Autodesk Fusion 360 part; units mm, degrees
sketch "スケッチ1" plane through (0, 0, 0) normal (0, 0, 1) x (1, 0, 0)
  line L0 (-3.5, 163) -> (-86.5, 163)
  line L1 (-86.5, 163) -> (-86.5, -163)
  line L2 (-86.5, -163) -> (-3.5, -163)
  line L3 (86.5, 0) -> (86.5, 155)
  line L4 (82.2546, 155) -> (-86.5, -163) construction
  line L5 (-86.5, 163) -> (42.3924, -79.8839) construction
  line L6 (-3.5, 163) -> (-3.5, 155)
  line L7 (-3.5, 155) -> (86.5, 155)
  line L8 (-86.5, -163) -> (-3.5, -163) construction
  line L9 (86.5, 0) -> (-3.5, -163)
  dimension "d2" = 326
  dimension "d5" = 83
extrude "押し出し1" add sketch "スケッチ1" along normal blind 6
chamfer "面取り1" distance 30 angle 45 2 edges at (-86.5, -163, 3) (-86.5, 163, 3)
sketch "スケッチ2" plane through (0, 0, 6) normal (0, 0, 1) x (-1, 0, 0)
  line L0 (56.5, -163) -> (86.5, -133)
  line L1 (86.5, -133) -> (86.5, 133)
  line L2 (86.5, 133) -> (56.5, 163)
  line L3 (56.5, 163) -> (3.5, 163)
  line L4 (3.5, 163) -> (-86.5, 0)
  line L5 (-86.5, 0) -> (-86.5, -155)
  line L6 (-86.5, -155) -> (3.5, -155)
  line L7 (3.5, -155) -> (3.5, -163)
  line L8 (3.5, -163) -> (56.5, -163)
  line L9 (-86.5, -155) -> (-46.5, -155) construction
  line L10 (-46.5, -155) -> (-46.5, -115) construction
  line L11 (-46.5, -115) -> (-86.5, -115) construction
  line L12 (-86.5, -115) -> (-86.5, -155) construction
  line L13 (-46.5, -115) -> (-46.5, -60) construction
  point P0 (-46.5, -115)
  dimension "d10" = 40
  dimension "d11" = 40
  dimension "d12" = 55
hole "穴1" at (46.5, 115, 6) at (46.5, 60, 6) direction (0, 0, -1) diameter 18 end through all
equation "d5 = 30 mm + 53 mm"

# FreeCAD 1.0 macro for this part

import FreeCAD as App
import Part
import Sketcher
Q = App.Units.Quantity


def edges_at(feature, points):
    """Names of the edges that pass closest to the given points."""
    edges = feature.Shape.Edges
    near = lambda p: min(range(len(edges)), key=lambda i: edges[i].distToShape(Part.Vertex(*p))[0])
    return sorted({f"Edge{near(p) + 1}" for p in points})


def add_polygon(sketch, points):
    """Adds a closed chain of lines whose ends are joined by coincident constraints."""
    first, n = sketch.GeometryCount, len(points)
    for a, b in zip(points, points[1:] + points[:1]):
        sketch.addGeometry(Part.LineSegment(App.Vector(*a, 0), App.Vector(*b, 0)), False)
    for i in range(n):
        sketch.addConstraint(Sketcher.Constraint("Coincident", first + i, 2, first + (i + 1) % n, 1))

doc = App.newDocument("Part")
params = doc.addObject("Spreadsheet::Sheet", "Params")
for row, (alias, value) in enumerate([
    ("sketch1_width", "83 mm"),
    ("sketch1_height", "326 mm"),
    ("sketch1_width2", "90 mm"),
    ("sketch1_height2", "8 mm"),
    ("pad1_length", "6 mm"),
    ("chamfer_size", "30 mm"),
    ("sketch2_diameter", "18 mm"),
    ("hole_diameter", "18 mm"),
], start=1):
    params.set(f"A{row}", alias)
    params.set(f"B{row}", "=" + value)
    params.setAlias(f"B{row}", alias)

body = doc.addObject("PartDesign::Body", "Body")

# Sketch on XY plane
sketch1 = body.newObject("Sketcher::SketchObject", "Sketch")
sketch1.AttachmentSupport = (doc.getObject("XY_Plane"), [""])
sketch1.MapMode = "FlatFace"
add_polygon(sketch1, [(-4, 155), (-4, 163), (-86, 163), (-86, -163), (-4, -163), (86, 0), (86, 155)])  # lines 0-6
sketch1.addConstraint([
    Sketcher.Constraint("Vertical", 0),
    Sketcher.Constraint("Horizontal", 1),
    Sketcher.Constraint("Vertical", 2),
    Sketcher.Constraint("Horizontal", 3),
    Sketcher.Constraint("Vertical", 5),
    Sketcher.Constraint("Horizontal", 6),
    Sketcher.Constraint("Symmetric", 0, 2, 3, 2, -1),
    Sketcher.Constraint("PointOnObject", 4, 2, -1),
    Sketcher.Constraint("DistanceX", 1, 2, 1, 1, Q("83 mm")),
    Sketcher.Constraint("DistanceY", 2, 2, 2, 1, Q("326 mm")),
    Sketcher.Constraint("DistanceX", 6, 2, 6, 1, Q("90 mm")),
    Sketcher.Constraint("DistanceY", 0, 1, 0, 2, Q("8 mm")),
    Sketcher.Constraint("DistanceX", 0, 2, -1, 1, Q("3.5 mm")),
])
sketch1.setExpression("Constraints[15]", "Params.sketch1_width")
sketch1.setExpression("Constraints[16]", "Params.sketch1_height")
sketch1.setExpression("Constraints[17]", "Params.sketch1_width2")
sketch1.setExpression("Constraints[18]", "Params.sketch1_height2")
pad1 = body.newObject("PartDesign::Pad", "Pad")
pad1.Profile = sketch1
pad1.setExpression("Length", "Params.pad1_length")
doc.recompute()

chamfer = body.newObject("PartDesign::Chamfer", "Chamfer")
chamfer.Base = (pad1, edges_at(pad1, [(-86.5, -163, 3), (-86.5, 163, 3)]))
chamfer.setExpression("Size", "Params.chamfer_size")

# Sketch on XY plane
sketch2 = body.newObject("Sketcher::SketchObject", "Sketch001")
sketch2.AttachmentSupport = (doc.getObject("XY_Plane"), [""])
sketch2.MapMode = "FlatFace"
sketch2.AttachmentOffset = App.Placement(App.Vector(0, 0, 6), App.Rotation())
sketch2.addGeometry([
    Part.Circle(App.Vector(46, 115, 0), App.Vector(0, 0, 1), 9),
    Part.Circle(App.Vector(46, 60, 0), App.Vector(0, 0, 1), 9),
], False)
sketch2.addConstraint([
    Sketcher.Constraint("Equal", 0, 1),
    Sketcher.Constraint("Vertical", 0, 3, 1, 3),
    Sketcher.Constraint("Diameter", 0, Q("18 mm")),
    Sketcher.Constraint("DistanceY", -1, 1, 0, 3, Q("115 mm")),
    Sketcher.Constraint("DistanceY", -1, 1, 1, 3, Q("60 mm")),
    Sketcher.Constraint("DistanceX", -1, 1, 0, 3, Q("46.5 mm")),
])
sketch2.setExpression("Constraints[2]", "Params.sketch2_diameter")
doc.recompute()
hole = body.newObject("PartDesign::Hole", "Hole")
hole.Profile = sketch2
hole.ThreadType = "None"
hole.setExpression("Diameter", "Params.hole_diameter")
hole.DepthType = "ThroughAll"

doc.recompute()
